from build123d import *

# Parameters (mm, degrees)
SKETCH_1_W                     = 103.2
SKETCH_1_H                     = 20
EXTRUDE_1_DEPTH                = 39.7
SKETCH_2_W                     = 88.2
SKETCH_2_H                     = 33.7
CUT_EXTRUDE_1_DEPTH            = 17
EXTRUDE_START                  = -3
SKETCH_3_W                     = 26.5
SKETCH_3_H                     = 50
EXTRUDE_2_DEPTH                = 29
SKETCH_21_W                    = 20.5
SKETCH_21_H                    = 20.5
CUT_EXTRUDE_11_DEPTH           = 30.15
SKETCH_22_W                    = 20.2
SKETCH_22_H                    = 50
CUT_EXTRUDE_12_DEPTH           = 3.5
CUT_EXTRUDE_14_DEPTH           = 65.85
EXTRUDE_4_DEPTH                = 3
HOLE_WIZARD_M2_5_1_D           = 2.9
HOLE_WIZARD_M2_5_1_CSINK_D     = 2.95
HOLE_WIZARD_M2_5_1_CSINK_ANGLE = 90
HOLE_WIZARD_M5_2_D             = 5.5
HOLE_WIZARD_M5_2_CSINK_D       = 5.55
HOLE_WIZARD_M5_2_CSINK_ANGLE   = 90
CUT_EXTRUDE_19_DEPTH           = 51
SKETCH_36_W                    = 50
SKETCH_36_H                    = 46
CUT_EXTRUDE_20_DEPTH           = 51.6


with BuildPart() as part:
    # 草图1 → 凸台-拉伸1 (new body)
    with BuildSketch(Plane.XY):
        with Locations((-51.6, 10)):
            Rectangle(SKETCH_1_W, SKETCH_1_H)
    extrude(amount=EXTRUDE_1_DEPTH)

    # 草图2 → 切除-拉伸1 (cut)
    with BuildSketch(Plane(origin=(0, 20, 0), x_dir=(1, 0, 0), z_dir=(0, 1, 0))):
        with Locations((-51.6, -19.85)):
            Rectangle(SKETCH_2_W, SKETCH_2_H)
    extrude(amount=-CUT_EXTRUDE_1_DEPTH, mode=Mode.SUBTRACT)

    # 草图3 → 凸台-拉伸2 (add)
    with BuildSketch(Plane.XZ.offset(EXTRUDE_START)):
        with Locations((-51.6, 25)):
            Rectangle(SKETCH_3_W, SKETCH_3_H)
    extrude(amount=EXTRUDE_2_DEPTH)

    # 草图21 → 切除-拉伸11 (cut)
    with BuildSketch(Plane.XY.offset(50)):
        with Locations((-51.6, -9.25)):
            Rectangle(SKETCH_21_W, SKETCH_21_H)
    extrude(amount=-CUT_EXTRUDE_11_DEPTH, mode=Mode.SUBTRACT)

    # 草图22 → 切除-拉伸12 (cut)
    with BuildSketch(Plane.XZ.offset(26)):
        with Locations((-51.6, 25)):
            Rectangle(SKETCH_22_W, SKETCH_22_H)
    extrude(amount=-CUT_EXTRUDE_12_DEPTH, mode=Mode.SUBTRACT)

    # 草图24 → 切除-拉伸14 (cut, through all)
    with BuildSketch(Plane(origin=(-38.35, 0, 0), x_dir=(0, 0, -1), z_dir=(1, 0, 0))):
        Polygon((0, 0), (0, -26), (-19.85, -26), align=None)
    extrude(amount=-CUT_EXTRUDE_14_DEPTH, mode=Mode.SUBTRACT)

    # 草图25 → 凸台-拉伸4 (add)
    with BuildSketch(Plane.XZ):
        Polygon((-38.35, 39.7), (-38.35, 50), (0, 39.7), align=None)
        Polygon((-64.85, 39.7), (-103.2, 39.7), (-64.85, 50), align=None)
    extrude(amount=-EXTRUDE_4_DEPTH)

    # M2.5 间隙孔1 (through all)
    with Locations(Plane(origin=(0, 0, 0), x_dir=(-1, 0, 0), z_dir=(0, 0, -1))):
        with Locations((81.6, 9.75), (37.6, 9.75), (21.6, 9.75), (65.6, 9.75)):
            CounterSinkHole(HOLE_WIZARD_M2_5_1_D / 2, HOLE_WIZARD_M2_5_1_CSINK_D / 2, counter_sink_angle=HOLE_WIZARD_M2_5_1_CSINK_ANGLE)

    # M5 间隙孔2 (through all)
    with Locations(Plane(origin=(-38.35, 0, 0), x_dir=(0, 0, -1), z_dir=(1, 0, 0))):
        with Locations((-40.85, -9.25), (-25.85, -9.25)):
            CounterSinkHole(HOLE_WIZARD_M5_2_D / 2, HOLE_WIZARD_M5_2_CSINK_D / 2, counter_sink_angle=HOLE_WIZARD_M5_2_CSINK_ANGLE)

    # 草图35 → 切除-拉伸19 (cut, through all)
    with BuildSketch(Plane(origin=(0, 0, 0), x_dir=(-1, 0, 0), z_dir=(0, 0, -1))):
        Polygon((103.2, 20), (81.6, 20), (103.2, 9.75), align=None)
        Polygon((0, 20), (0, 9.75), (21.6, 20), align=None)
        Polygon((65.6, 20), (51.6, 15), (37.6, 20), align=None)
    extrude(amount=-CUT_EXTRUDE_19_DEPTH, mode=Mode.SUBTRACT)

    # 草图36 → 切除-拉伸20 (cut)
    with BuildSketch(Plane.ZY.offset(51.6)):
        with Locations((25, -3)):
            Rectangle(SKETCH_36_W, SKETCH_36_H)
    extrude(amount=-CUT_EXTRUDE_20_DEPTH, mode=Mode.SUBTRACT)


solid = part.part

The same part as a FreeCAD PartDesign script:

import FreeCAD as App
import Part
import Sketcher

V = App.Vector

doc = App.newDocument("Part")
body = doc.addObject("PartDesign::Body", "Body")

sketch1 = doc.addObject("Sketcher::SketchObject", "Sketch")
body.addObject(sketch1)
sketch1.AttachmentSupport = (doc.XY_Plane, [""])
sketch1.MapMode = "FlatFace"
sketch1.addGeometry([
    Part.LineSegment(V(-103, 20, 0), V(-103, 0, 0)),
    Part.LineSegment(V(-103, 0, 0), V(0, 0, 0)),
    Part.LineSegment(V(0, 0, 0), V(0, 20, 0)),
    Part.LineSegment(V(0, 20, 0), V(-103, 20, 0)),
], False)
sketch1.addConstraint([
    Sketcher.Constraint("Coincident", 0, 2, 1, 1),
    Sketcher.Constraint("Coincident", 1, 2, 2, 1),
    Sketcher.Constraint("Coincident", 2, 2, 3, 1),
    Sketcher.Constraint("Coincident", 3, 2, 0, 1),
    Sketcher.Constraint("Vertical", 0),
    Sketcher.Constraint("Horizontal", 1),
    Sketcher.Constraint("Vertical", 2),
    Sketcher.Constraint("Horizontal", 3),
    Sketcher.Constraint("Coincident", 1, 2, -1, 1),
    Sketcher.Constraint("DistanceY", 0, 2, 0, 1, 20.0),
    Sketcher.Constraint("DistanceX", 1, 1, 1, 2, 103.2),
])
pad1 = doc.addObject("PartDesign::Pad", "Pad")
body.addObject(pad1)
pad1.Profile = sketch1
pad1.Length = 39.7

sketch2 = doc.addObject("Sketcher::SketchObject", "Sketch001")
body.addObject(sketch2)
sketch2.AttachmentSupport = (doc.XZ_Plane, [""])
sketch2.MapMode = "FlatFace"
sketch2.AttachmentOffset = App.Placement(V(0, 0, -20), App.Rotation())
sketch2.addGeometry([
    Part.LineSegment(V(-96, 3, 0), V(-96, 37, 0)),
    Part.LineSegment(V(-96, 37, 0), V(-8, 37, 0)),
    Part.LineSegment(V(-8, 37, 0), V(-8, 3, 0)),
    Part.LineSegment(V(-8, 3, 0), V(-96, 3, 0)),
], False)
sketch2.addConstraint([
    Sketcher.Constraint("Coincident", 0, 2, 1, 1),
    Sketcher.Constraint("Coincident", 1, 2, 2, 1),
    Sketcher.Constraint("Coincident", 2, 2, 3, 1),
    Sketcher.Constraint("Coincident", 3, 2, 0, 1),
    Sketcher.Constraint("Vertical", 0),
    Sketcher.Constraint("Horizontal", 1),
    Sketcher.Constraint("Vertical", 2),
    Sketcher.Constraint("Horizontal", 3),
    Sketcher.Constraint("DistanceX", 1, 1, 1, 2, 88.2),
    Sketcher.Constraint("DistanceY", 0, 1, 0, 2, 33.7),
    Sketcher.Constraint("DistanceY", -1, 1, 2, 2, 3.0),
    Sketcher.Constraint("DistanceX", 0, 2, -1, 1, 95.7),
])
pocket1 = doc.addObject("PartDesign::Pocket", "Pocket")
body.addObject(pocket1)
pocket1.Profile = sketch2
pocket1.Length = 17
pocket1.Reversed = True

sketch3 = doc.addObject("Sketcher::SketchObject", "Sketch002")
body.addObject(sketch3)
sketch3.AttachmentSupport = (doc.XZ_Plane, [""])
sketch3.MapMode = "FlatFace"
sketch3.AttachmentOffset = App.Placement(V(0, 0, -3), App.Rotation())
sketch3.addGeometry([
    Part.LineSegment(V(-65, 50, 0), V(-65, 0, 0)),
    Part.LineSegment(V(-65, 0, 0), V(-38, 0, 0)),
    Part.LineSegment(V(-38, 0, 0), V(-38, 50, 0)),
    Part.LineSegment(V(-38, 50, 0), V(-65, 50, 0)),
], False)
sketch3.addConstraint([
    Sketcher.Constraint("Coincident", 0, 2, 1, 1),
    Sketcher.Constraint("Coincident", 1, 2, 2, 1),
    Sketcher.Constraint("Coincident", 2, 2, 3, 1),
    Sketcher.Constraint("Coincident", 3, 2, 0, 1),
    Sketcher.Constraint("Vertical", 0),
    Sketcher.Constraint("Horizontal", 1),
    Sketcher.Constraint("Vertical", 2),
    Sketcher.Constraint("Horizontal", 3),
    Sketcher.Constraint("PointOnObject", 0, 2, -1),
    Sketcher.Constraint("DistanceY", 0, 2, 0, 1, 50.0),
    Sketcher.Constraint("DistanceX", 1, 1, 1, 2, 26.5),
    Sketcher.Constraint("DistanceX", 0, 2, -1, 1, 64.85),
])
pad2 = doc.addObject("PartDesign::Pad", "Pad001")
body.addObject(pad2)
pad2.Profile = sketch3
pad2.Length = 29

sketch4 = doc.addObject("Sketcher::SketchObject", "Sketch003")
body.addObject(sketch4)
sketch4.AttachmentSupport = (doc.XY_Plane, [""])
sketch4.MapMode = "FlatFace"
sketch4.AttachmentOffset = App.Placement(V(0, 0, 50), App.Rotation())
sketch4.addGeometry([
    Part.LineSegment(V(-62, 1, 0), V(-62, -20, 0)),
    Part.LineSegment(V(-62, -20, 0), V(-41, -20, 0)),
    Part.LineSegment(V(-41, -20, 0), V(-41, 1, 0)),
    Part.LineSegment(V(-41, 1, 0), V(-62, 1, 0)),
], False)
sketch4.addConstraint([
    Sketcher.Constraint("Coincident", 0, 2, 1, 1),
    Sketcher.Constraint("Coincident", 1, 2, 2, 1),
    Sketcher.Constraint("Coincident", 2, 2, 3, 1),
    Sketcher.Constraint("Coincident", 3, 2, 0, 1),
    Sketcher.Constraint("Vertical", 0),
    Sketcher.Constraint("Horizontal", 1),
    Sketcher.Constraint("Vertical", 2),
    Sketcher.Constraint("Horizontal", 3),
    Sketcher.Constraint("Equal", 3, 0),
    Sketcher.Constraint("DistanceX", 1, 1, 1, 2, 20.5),
    Sketcher.Constraint("DistanceY", -1, 1, 2, 2, 1.0),
    Sketcher.Constraint("DistanceX", 0, 2, -1, 1, 61.85),
])
pocket2 = doc.addObject("PartDesign::Pocket", "Pocket001")
body.addObject(pocket2)
pocket2.Profile = sketch4
pocket2.Length = 30.15

sketch5 = doc.addObject("Sketcher::SketchObject", "Sketch004")
body.addObject(sketch5)
sketch5.AttachmentSupport = (doc.XZ_Plane, [""])
sketch5.MapMode = "FlatFace"
sketch5.AttachmentOffset = App.Placement(V(0, 0, 26), App.Rotation())
sketch5.addGeometry([
    Part.LineSegment(V(-62, 50, 0), V(-62, 0, 0)),
    Part.LineSegment(V(-62, 0, 0), V(-42, 0, 0)),
    Part.LineSegment(V(-42, 0, 0), V(-42, 50, 0)),
    Part.LineSegment(V(-42, 50, 0), V(-62, 50, 0)),
], False)
sketch5.addConstraint([
    Sketcher.Constraint("Coincident", 0, 2, 1, 1),
    Sketcher.Constraint("Coincident", 1, 2, 2, 1),
    Sketcher.Constraint("Coincident", 2, 2, 3, 1),
    Sketcher.Constraint("Coincident", 3, 2, 0, 1),
    Sketcher.Constraint("Vertical", 0),
    Sketcher.Constraint("Horizontal", 1),
    Sketcher.Constraint("Vertical", 2),
    Sketcher.Constraint("Horizontal", 3),
    Sketcher.Constraint("PointOnObject", 0, 2, -1),
    Sketcher.Constraint("DistanceY", 0, 2, 0, 1, 50.0),
    Sketcher.Constraint("DistanceX", 1, 1, 1, 2, 20.2),
    Sketcher.Constraint("DistanceX", 0, 2, -1, 1, 61.7),
])
pocket3 = doc.addObject("PartDesign::Pocket", "Pocket002")
body.addObject(pocket3)
pocket3.Profile = sketch5
pocket3.Length = 3.5

sketch6 = doc.addObject("Sketcher::SketchObject", "Sketch005")
body.addObject(sketch6)
sketch6.AttachmentSupport = (doc.YZ_Plane, [""])
sketch6.MapMode = "FlatFace"
sketch6.AttachmentOffset = App.Placement(V(0, 0, -38.35), App.Rotation())
sketch6.addGeometry([
    Part.LineSegment(V(-26, 0, 0), V(0, 0, 0)),
    Part.LineSegment(V(0, 0, 0), V(-26, 20, 0)),
    Part.LineSegment(V(-26, 20, 0), V(-26, 0, 0)),
], False)
sketch6.addConstraint([
    Sketcher.Constraint("Coincident", 0, 2, 1, 1),
    Sketcher.Constraint("Coincident", 1, 2, 2, 1),
    Sketcher.Constraint("Coincident", 2, 2, 0, 1),
    Sketcher.Constraint("Horizontal", 0),
    Sketcher.Constraint("Vertical", 2),
    Sketcher.Constraint("Coincident", 0, 2, -1, 1),
    Sketcher.Constraint("DistanceX", 0, 1, 0, 2, 26.0),
    Sketcher.Constraint("DistanceY", 2, 2, 2, 1, 19.85),
])
pocket4 = doc.addObject("PartDesign::Pocket", "Pocket003")
body.addObject(pocket4)
pocket4.Profile = sketch6
pocket4.Type = "ThroughAll"

sketch7 = doc.addObject("Sketcher::SketchObject", "Sketch006")
body.addObject(sketch7)
sketch7.AttachmentSupport = (doc.XZ_Plane, [""])
sketch7.MapMode = "FlatFace"
sketch7.addGeometry([
    Part.LineSegment(V(-38, 50, 0), V(-38, 40, 0)),
    Part.LineSegment(V(-38, 40, 0), V(0, 40, 0)),
    Part.LineSegment(V(0, 40, 0), V(-38, 50, 0)),
    Part.LineSegment(V(-103, 40, 0), V(-65, 40, 0)),
    Part.LineSegment(V(-65, 40, 0), V(-65, 50, 0)),
    Part.LineSegment(V(-65, 50, 0), V(-103, 40, 0)),
], False)
sketch7.addConstraint([
    Sketcher.Constraint("Coincident", 0, 2, 1, 1),
    Sketcher.Constraint("Coincident", 1, 2, 2, 1),
    Sketcher.Constraint("Coincident", 2, 2, 0, 1),
    Sketcher.Constraint("Coincident", 3, 2, 4, 1),
    Sketcher.Constraint("Coincident", 4, 2, 5, 1),
    Sketcher.Constraint("Coincident", 5, 2, 3, 1),
    Sketcher.Constraint("Vertical", 0),
    Sketcher.Constraint("Horizontal", 1),
    Sketcher.Constraint("Horizontal", 3),
    Sketcher.Constraint("Vertical", 4),
    Sketcher.Constraint("PointOnObject", 1, 2, -2),
    Sketcher.Constraint("Horizontal", 1, 2, 3, 2),
    Sketcher.Constraint("Horizontal", 2, 2, 4, 2),
    Sketcher.Constraint("Equal", 1, 3),
    Sketcher.Constraint("DistanceY", 0, 2, 0, 1, 10.3),
    Sketcher.Constraint("DistanceY", -1, 1, 2, 2, 50.0),
    Sketcher.Constraint("DistanceX", 1, 1, 1, 2, 38.35),
    Sketcher.Constraint("DistanceX", 5, 2, -1, 1, 103.2),
])
pad3 = doc.addObject("PartDesign::Pad", "Pad002")
body.addObject(pad3)
pad3.Profile = sketch7
pad3.Length = 3
pad3.Reversed = True

sketch8 = doc.addObject("Sketcher::SketchObject", "Sketch007")
body.addObject(sketch8)
sketch8.AttachmentSupport = (doc.XY_Plane, [""])
sketch8.MapMode = "FlatFace"
sketch8.addGeometry([
    Part.Circle(V(-81.6, 9.8, 0), V(0, 0, 1), 1.4),
    Part.Circle(V(-37.6, 9.8, 0), V(0, 0, 1), 1.4),
    Part.Circle(V(-21.6, 9.8, 0), V(0, 0, 1), 1.4),
    Part.Circle(V(-65.6, 9.8, 0), V(0, 0, 1), 1.4),
], False)
sketch8.addConstraint([
    Sketcher.Constraint("Equal", 0, 1),
    Sketcher.Constraint("Equal", 1, 2),
    Sketcher.Constraint("Equal", 2, 3),
    Sketcher.Constraint("Horizontal", 0, 3, 1, 3),
    Sketcher.Constraint("Horizontal", 1, 3, 2, 3),
    Sketcher.Constraint("Horizontal", 2, 3, 3, 3),
    Sketcher.Constraint("Diameter", 0, 2.9),
    Sketcher.Constraint("DistanceX", 0, 3, 1, 3, 44.0),
    Sketcher.Constraint("DistanceX", 1, 3, 2, 3, 16.0),
    Sketcher.Constraint("DistanceX", 0, 3, 3, 3, 16.0),
    Sketcher.Constraint("DistanceX", 0, 3, -1, 1, 81.6),
    Sketcher.Constraint("DistanceY", -1, 1, 0, 3, 9.75),
])
doc.recompute()
hole = doc.addObject("PartDesign::Hole", "Hole")
body.addObject(hole)
hole.Profile = sketch8
hole.ThreadType = "None"
hole.Diameter = 2.9
hole.DepthType = "ThroughAll"
hole.HoleCutType = "Countersink"
hole.HoleCutDiameter = 2.95
hole.HoleCutCountersinkAngle = 90
hole.Reversed = True

sketch9 = doc.addObject("Sketcher::SketchObject", "Sketch008")
body.addObject(sketch9)
sketch9.AttachmentSupport = (doc.YZ_Plane, [""])
sketch9.MapMode = "FlatFace"
sketch9.AttachmentOffset = App.Placement(V(0, 0, -38.35), App.Rotation())
sketch9.addGeometry([
    Part.Circle(V(-9.2, 40.9, 0), V(0, 0, 1), 2.8),
    Part.Circle(V(-9.2, 25.9, 0), V(0, 0, 1), 2.8),
], False)
sketch9.addConstraint([
    Sketcher.Constraint("Equal", 0, 1),
    Sketcher.Constraint("Vertical", 0, 3, 1, 3),
    Sketcher.Constraint("Diameter", 0, 5.5),
    Sketcher.Constraint("DistanceY", 1, 3, 0, 3, 15.0),
    Sketcher.Constraint("DistanceX", 0, 3, -1, 1, 9.25),
    Sketcher.Constraint("DistanceY", -1, 1, 0, 3, 40.85),
])
doc.recompute()
hole2 = doc.addObject("PartDesign::Hole", "Hole001")
body.addObject(hole2)
hole2.Profile = sketch9
hole2.ThreadType = "None"
hole2.Diameter = 5.5
hole2.DepthType = "ThroughAll"
hole2.HoleCutType = "Countersink"
hole2.HoleCutDiameter = 5.55
hole2.HoleCutCountersinkAngle = 90

sketch10 = doc.addObject("Sketcher::SketchObject", "Sketch009")
body.addObject(sketch10)
sketch10.AttachmentSupport = (doc.XY_Plane, [""])
sketch10.MapMode = "FlatFace"
sketch10.addGeometry([
    Part.LineSegment(V(-103, 20, 0), V(-82, 20, 0)),
    Part.LineSegment(V(-82, 20, 0), V(-103, 10, 0)),
    Part.LineSegment(V(-103, 10, 0), V(-103, 20, 0)),
    Part.LineSegment(V(0, 20, 0), V(0, 10, 0)),
    Part.LineSegment(V(0, 10, 0), V(-22, 20, 0)),
    Part.LineSegment(V(-22, 20, 0), V(0, 20, 0)),
    Part.LineSegment(V(-52, 15, 0), V(-66, 20, 0)),
    Part.LineSegment(V(-66, 20, 0), V(-38, 20, 0)),
    Part.LineSegment(V(-38, 20, 0), V(-52, 15, 0)),
], False)
sketch10.addConstraint([
    Sketcher.Constraint("Coincident", 0, 2, 1, 1),
    Sketcher.Constraint("Coincident", 1, 2, 2, 1),
    Sketcher.Constraint("Coincident", 2, 2, 0, 1),
    Sketcher.Constraint("Coincident", 3, 2, 4, 1),
    Sketcher.Constraint("Coincident", 4, 2, 5, 1),
    Sketcher.Constraint("Coincident", 5, 2, 3, 1),
    Sketcher.Constraint("Coincident", 6, 2, 7, 1),
    Sketcher.Constraint("Coincident", 7, 2, 8, 1),
    Sketcher.Constraint("Coincident", 8, 2, 6, 1),
    Sketcher.Constraint("Horizontal", 0),
    Sketcher.Constraint("Vertical", 2),
    Sketcher.Constraint("Vertical", 3),
    Sketcher.Constraint("Horizontal", 5),
    Sketcher.Constraint("Horizontal", 7),
    Sketcher.Constraint("PointOnObject", 3, 2, -2),
    Sketcher.Constraint("Horizontal", 1, 2, 3, 2),
    Sketcher.Constraint("Horizontal", 2, 2, 4, 2),
    Sketcher.Constraint("Horizontal", 5, 2, 6, 2),
    Sketcher.Constraint("Equal", 0, 5),
    Sketcher.Constraint("Equal", 6, 8),
    Sketcher.Constraint("DistanceX", 7, 1, 7, 2, 28.0),
    Sketcher.Constraint("DistanceX", 0, 1, 0, 2, 21.6),
    Sketcher.Constraint("DistanceY", -1, 1, 0, 2, 20.0),
    Sketcher.Constraint("DistanceY", -1, 1, 8, 2, 15.0),
    Sketcher.Constraint("DistanceX", 0, 2, 4, 2, 60.0),
    Sketcher.Constraint("DistanceX", 0, 2, 6, 2, 16.0),
    Sketcher.Constraint("DistanceY", 2, 1, 2, 2, 10.25),
])
pocket5 = doc.addObject("PartDesign::Pocket", "Pocket004")
body.addObject(pocket5)
pocket5.Profile = sketch10
pocket5.Type = "ThroughAll"
pocket5.Reversed = True

sketch11 = doc.addObject("Sketcher::SketchObject", "Sketch010")
body.addObject(sketch11)
sketch11.AttachmentSupport = (doc.YZ_Plane, [""])
sketch11.MapMode = "FlatFace"
sketch11.AttachmentOffset = App.Placement(V(0, 0, -51.6), App.Rotation())
sketch11.addGeometry([
    Part.LineSegment(V(20, 0, 0), V(-26, 0, 0)),
    Part.LineSegment(V(-26, 0, 0), V(-26, 50, 0)),
    Part.LineSegment(V(-26, 50, 0), V(20, 50, 0)),
    Part.LineSegment(V(20, 50, 0), V(20, 0, 0)),
], False)
sketch11.addConstraint([
    Sketcher.Constraint("Coincident", 0, 2, 1, 1),
    Sketcher.Constraint("Coincident", 1, 2, 2, 1),
    Sketcher.Constraint("Coincident", 2, 2, 3, 1),
    Sketcher.Constraint("Coincident", 3, 2, 0, 1),
    Sketcher.Constraint("Horizontal", 0),
    Sketcher.Constraint("Vertical", 1),
    Sketcher.Constraint("Horizontal", 2),
    Sketcher.Constraint("Vertical", 3),
    Sketcher.Constraint("PointOnObject", 0, 2, -1),
    Sketcher.Constraint("DistanceX", 0, 2, 0, 1, 46.0),
    Sketcher.Constraint("DistanceY", 1, 1, 1, 2, 50.0),
    Sketcher.Constraint("DistanceX", 0, 2, -1, 1, 26.0),
])
pocket6 = doc.addObject("PartDesign::Pocket", "Pocket005")
body.addObject(pocket6)
pocket6.Profile = sketch11
pocket6.Length = 51.6
pocket6.Reversed = True

doc.recompute()
